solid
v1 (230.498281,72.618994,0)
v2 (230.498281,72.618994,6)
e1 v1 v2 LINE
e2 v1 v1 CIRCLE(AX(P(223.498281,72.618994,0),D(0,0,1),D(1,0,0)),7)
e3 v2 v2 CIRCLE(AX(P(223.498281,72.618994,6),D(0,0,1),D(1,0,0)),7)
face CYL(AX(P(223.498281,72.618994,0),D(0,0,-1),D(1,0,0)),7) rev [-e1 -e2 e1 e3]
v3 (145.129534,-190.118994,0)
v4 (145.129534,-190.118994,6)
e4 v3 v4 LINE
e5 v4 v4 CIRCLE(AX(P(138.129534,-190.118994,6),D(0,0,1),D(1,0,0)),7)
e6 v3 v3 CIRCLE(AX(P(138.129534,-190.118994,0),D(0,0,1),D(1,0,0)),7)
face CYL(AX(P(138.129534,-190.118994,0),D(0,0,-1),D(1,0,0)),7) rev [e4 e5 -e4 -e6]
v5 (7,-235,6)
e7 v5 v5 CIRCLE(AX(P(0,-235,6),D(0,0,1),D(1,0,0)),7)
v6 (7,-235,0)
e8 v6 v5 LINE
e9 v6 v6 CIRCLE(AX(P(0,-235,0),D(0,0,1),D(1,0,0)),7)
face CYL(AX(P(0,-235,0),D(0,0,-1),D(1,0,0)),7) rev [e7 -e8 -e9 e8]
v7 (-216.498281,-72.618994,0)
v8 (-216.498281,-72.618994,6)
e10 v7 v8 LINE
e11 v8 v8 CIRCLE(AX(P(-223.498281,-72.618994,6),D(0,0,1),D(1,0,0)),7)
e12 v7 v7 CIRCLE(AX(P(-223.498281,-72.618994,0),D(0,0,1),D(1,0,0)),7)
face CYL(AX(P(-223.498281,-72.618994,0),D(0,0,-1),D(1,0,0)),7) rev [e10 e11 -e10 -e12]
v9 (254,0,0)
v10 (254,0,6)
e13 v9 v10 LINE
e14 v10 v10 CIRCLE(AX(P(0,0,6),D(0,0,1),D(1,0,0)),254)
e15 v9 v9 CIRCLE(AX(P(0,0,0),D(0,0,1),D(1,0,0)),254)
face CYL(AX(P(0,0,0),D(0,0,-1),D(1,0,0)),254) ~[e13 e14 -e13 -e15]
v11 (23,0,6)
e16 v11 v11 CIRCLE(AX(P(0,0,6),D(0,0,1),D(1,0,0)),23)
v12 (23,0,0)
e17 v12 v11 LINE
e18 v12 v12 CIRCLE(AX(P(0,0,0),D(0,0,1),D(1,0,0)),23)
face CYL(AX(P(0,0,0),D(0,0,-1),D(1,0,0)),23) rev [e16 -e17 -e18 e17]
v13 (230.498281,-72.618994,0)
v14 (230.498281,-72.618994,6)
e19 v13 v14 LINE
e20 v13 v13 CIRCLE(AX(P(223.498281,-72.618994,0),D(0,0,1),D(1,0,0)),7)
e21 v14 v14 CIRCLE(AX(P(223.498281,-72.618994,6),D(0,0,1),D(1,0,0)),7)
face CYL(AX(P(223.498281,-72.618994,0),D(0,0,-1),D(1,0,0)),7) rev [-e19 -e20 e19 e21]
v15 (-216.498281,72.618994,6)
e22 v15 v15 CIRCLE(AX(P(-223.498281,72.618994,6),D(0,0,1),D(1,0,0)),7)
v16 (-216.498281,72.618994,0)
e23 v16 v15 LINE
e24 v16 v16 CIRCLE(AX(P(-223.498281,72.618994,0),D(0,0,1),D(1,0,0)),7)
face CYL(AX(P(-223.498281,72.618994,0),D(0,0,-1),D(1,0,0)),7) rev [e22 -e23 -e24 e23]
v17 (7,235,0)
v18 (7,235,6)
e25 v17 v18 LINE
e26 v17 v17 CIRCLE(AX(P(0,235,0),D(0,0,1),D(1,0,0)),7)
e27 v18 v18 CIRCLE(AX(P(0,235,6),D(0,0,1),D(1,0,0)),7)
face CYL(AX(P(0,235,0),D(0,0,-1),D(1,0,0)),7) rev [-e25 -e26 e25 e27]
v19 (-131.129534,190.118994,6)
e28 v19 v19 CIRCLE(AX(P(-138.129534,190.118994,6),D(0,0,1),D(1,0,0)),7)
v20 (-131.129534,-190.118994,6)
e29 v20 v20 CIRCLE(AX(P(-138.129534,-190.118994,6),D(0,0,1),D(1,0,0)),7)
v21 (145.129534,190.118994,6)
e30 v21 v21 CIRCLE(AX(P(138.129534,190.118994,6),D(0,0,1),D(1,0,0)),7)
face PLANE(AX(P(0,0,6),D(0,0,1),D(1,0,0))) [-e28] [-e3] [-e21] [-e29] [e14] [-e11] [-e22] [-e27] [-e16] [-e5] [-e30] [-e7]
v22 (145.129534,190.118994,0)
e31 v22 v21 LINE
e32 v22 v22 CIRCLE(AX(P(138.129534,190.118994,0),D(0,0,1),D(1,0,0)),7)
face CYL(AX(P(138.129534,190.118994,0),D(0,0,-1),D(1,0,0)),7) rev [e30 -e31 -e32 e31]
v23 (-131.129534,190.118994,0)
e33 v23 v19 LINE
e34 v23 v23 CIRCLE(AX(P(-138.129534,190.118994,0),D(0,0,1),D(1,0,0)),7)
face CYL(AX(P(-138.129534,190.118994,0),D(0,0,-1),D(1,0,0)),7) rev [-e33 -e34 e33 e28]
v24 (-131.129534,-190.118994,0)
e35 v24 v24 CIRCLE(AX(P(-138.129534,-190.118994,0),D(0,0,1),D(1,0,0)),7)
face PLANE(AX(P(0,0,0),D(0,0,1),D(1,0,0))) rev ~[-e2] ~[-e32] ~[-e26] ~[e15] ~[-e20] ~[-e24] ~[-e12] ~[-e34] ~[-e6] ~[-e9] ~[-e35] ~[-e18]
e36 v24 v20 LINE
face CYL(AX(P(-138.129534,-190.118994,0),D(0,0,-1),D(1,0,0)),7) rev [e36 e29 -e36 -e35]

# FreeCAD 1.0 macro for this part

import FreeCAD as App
import Part
import Sketcher
from FreeCAD import Vector
Q = App.Units.Quantity

doc = App.newDocument("Part")
params = doc.addObject("Spreadsheet::Sheet", "Params")
for row, (alias, value) in enumerate([
    ("sketch1_diameter", "508 mm"),
    ("sketch1_diameter2", "14 mm"),
    ("sketch1_diameter3", "46 mm"),
    ("pad1_length", "6 mm"),
], start=1):
    params.set(f"A{row}", alias)
    params.set(f"B{row}", "=" + value)
    params.setAlias(f"B{row}", alias)

body = doc.addObject("PartDesign::Body", "Body")

sketch1 = body.newObject("Sketcher::SketchObject", "Sketch")
sketch1.AttachmentSupport = (doc.getObject("XY_Plane"), [""])
sketch1.MapMode = "FlatFace"
sketch1.addGeometry([
    Part.Circle(Vector(0, 0, 0), Vector(0, 0, 1), 254),
    Part.Circle(Vector(-138.129534, -190.118994, 0), Vector(0, 0, 1), 7),
    Part.Circle(Vector(-223.498281, -72.618994, 0), Vector(0, 0, 1), 7),
    Part.Circle(Vector(0, -235, 0), Vector(0, 0, 1), 7),
    Part.Circle(Vector(138.129534, -190.118994, 0), Vector(0, 0, 1), 7),
    Part.Circle(Vector(223.498281, -72.618994, 0), Vector(0, 0, 1), 7),
    Part.Circle(Vector(-223.498281, 72.618994, 0), Vector(0, 0, 1), 7),
    Part.Circle(Vector(-138.129534, 190.118994, 0), Vector(0, 0, 1), 7),
    Part.Circle(Vector(0, 0, 0), Vector(0, 0, 1), 23),
    Part.Circle(Vector(223.498281, 72.618994, 0), Vector(0, 0, 1), 7),
    Part.Circle(Vector(0, 235, 0), Vector(0, 0, 1), 7),
    Part.Circle(Vector(138.129534, 190.118994, 0), Vector(0, 0, 1), 7),
], False)
sketch1.addConstraint([
    Sketcher.Constraint("Coincident", 0, 3, -1, 1),
    Sketcher.Constraint("Coincident", 8, 3, -1, 1),
    Sketcher.Constraint("Equal", 1, 2),
    Sketcher.Constraint("Equal", 2, 3),
    Sketcher.Constraint("Equal", 3, 4),
    Sketcher.Constraint("Equal", 4, 5),
    Sketcher.Constraint("Equal", 5, 6),
    Sketcher.Constraint("Equal", 6, 7),
    Sketcher.Constraint("Equal", 7, 9),
    Sketcher.Constraint("Equal", 9, 10),
    Sketcher.Constraint("Equal", 10, 11),
    Sketcher.Constraint("Symmetric", 5, 3, 6, 3, -1, 1),
    Sketcher.Constraint("Symmetric", 4, 3, 7, 3, -1, 1),
    Sketcher.Constraint("Symmetric", 2, 3, 9, 3, -1, 1),
    Sketcher.Constraint("Symmetric", 3, 3, 10, 3, -1, 1),
    Sketcher.Constraint("Symmetric", 1, 3, 11, 3, -1, 1),
    Sketcher.Constraint("Symmetric", 1, 3, 4, 3, -2),
    Sketcher.Constraint("Symmetric", 2, 3, 5, 3, -2),
    Sketcher.Constraint("PointOnObject", 3, 3, -2),
    Sketcher.Constraint("Diameter", 0, Q("508 mm")),
    Sketcher.Constraint("Diameter", 1, Q("14 mm")),
    Sketcher.Constraint("Diameter", 8, Q("46 mm")),
    Sketcher.Constraint("DistanceY", 3, 3, -1, 1, Q("235 mm")),
    Sketcher.Constraint("DistanceY", 1, 3, 2, 3, Q("117.5 mm")),
    Sketcher.Constraint("DistanceX", 2, 3, -1, 1, Q("223.498281 mm")),
    Sketcher.Constraint("DistanceX", 1, 3, 4, 3, Q("276.259068 mm")),
    Sketcher.Constraint("DistanceY", 2, 3, 6, 3, Q("145.237988 mm")),
])
sketch1.setExpression("Constraints[19]", "Params.sketch1_diameter")
sketch1.setExpression("Constraints[20]", "Params.sketch1_diameter2")
sketch1.setExpression("Constraints[21]", "Params.sketch1_diameter3")
pad1 = body.newObject("PartDesign::Pad", "Pad")
pad1.Profile = sketch1
pad1.setExpression("Length", "Params.pad1_length")

doc.recompute()
